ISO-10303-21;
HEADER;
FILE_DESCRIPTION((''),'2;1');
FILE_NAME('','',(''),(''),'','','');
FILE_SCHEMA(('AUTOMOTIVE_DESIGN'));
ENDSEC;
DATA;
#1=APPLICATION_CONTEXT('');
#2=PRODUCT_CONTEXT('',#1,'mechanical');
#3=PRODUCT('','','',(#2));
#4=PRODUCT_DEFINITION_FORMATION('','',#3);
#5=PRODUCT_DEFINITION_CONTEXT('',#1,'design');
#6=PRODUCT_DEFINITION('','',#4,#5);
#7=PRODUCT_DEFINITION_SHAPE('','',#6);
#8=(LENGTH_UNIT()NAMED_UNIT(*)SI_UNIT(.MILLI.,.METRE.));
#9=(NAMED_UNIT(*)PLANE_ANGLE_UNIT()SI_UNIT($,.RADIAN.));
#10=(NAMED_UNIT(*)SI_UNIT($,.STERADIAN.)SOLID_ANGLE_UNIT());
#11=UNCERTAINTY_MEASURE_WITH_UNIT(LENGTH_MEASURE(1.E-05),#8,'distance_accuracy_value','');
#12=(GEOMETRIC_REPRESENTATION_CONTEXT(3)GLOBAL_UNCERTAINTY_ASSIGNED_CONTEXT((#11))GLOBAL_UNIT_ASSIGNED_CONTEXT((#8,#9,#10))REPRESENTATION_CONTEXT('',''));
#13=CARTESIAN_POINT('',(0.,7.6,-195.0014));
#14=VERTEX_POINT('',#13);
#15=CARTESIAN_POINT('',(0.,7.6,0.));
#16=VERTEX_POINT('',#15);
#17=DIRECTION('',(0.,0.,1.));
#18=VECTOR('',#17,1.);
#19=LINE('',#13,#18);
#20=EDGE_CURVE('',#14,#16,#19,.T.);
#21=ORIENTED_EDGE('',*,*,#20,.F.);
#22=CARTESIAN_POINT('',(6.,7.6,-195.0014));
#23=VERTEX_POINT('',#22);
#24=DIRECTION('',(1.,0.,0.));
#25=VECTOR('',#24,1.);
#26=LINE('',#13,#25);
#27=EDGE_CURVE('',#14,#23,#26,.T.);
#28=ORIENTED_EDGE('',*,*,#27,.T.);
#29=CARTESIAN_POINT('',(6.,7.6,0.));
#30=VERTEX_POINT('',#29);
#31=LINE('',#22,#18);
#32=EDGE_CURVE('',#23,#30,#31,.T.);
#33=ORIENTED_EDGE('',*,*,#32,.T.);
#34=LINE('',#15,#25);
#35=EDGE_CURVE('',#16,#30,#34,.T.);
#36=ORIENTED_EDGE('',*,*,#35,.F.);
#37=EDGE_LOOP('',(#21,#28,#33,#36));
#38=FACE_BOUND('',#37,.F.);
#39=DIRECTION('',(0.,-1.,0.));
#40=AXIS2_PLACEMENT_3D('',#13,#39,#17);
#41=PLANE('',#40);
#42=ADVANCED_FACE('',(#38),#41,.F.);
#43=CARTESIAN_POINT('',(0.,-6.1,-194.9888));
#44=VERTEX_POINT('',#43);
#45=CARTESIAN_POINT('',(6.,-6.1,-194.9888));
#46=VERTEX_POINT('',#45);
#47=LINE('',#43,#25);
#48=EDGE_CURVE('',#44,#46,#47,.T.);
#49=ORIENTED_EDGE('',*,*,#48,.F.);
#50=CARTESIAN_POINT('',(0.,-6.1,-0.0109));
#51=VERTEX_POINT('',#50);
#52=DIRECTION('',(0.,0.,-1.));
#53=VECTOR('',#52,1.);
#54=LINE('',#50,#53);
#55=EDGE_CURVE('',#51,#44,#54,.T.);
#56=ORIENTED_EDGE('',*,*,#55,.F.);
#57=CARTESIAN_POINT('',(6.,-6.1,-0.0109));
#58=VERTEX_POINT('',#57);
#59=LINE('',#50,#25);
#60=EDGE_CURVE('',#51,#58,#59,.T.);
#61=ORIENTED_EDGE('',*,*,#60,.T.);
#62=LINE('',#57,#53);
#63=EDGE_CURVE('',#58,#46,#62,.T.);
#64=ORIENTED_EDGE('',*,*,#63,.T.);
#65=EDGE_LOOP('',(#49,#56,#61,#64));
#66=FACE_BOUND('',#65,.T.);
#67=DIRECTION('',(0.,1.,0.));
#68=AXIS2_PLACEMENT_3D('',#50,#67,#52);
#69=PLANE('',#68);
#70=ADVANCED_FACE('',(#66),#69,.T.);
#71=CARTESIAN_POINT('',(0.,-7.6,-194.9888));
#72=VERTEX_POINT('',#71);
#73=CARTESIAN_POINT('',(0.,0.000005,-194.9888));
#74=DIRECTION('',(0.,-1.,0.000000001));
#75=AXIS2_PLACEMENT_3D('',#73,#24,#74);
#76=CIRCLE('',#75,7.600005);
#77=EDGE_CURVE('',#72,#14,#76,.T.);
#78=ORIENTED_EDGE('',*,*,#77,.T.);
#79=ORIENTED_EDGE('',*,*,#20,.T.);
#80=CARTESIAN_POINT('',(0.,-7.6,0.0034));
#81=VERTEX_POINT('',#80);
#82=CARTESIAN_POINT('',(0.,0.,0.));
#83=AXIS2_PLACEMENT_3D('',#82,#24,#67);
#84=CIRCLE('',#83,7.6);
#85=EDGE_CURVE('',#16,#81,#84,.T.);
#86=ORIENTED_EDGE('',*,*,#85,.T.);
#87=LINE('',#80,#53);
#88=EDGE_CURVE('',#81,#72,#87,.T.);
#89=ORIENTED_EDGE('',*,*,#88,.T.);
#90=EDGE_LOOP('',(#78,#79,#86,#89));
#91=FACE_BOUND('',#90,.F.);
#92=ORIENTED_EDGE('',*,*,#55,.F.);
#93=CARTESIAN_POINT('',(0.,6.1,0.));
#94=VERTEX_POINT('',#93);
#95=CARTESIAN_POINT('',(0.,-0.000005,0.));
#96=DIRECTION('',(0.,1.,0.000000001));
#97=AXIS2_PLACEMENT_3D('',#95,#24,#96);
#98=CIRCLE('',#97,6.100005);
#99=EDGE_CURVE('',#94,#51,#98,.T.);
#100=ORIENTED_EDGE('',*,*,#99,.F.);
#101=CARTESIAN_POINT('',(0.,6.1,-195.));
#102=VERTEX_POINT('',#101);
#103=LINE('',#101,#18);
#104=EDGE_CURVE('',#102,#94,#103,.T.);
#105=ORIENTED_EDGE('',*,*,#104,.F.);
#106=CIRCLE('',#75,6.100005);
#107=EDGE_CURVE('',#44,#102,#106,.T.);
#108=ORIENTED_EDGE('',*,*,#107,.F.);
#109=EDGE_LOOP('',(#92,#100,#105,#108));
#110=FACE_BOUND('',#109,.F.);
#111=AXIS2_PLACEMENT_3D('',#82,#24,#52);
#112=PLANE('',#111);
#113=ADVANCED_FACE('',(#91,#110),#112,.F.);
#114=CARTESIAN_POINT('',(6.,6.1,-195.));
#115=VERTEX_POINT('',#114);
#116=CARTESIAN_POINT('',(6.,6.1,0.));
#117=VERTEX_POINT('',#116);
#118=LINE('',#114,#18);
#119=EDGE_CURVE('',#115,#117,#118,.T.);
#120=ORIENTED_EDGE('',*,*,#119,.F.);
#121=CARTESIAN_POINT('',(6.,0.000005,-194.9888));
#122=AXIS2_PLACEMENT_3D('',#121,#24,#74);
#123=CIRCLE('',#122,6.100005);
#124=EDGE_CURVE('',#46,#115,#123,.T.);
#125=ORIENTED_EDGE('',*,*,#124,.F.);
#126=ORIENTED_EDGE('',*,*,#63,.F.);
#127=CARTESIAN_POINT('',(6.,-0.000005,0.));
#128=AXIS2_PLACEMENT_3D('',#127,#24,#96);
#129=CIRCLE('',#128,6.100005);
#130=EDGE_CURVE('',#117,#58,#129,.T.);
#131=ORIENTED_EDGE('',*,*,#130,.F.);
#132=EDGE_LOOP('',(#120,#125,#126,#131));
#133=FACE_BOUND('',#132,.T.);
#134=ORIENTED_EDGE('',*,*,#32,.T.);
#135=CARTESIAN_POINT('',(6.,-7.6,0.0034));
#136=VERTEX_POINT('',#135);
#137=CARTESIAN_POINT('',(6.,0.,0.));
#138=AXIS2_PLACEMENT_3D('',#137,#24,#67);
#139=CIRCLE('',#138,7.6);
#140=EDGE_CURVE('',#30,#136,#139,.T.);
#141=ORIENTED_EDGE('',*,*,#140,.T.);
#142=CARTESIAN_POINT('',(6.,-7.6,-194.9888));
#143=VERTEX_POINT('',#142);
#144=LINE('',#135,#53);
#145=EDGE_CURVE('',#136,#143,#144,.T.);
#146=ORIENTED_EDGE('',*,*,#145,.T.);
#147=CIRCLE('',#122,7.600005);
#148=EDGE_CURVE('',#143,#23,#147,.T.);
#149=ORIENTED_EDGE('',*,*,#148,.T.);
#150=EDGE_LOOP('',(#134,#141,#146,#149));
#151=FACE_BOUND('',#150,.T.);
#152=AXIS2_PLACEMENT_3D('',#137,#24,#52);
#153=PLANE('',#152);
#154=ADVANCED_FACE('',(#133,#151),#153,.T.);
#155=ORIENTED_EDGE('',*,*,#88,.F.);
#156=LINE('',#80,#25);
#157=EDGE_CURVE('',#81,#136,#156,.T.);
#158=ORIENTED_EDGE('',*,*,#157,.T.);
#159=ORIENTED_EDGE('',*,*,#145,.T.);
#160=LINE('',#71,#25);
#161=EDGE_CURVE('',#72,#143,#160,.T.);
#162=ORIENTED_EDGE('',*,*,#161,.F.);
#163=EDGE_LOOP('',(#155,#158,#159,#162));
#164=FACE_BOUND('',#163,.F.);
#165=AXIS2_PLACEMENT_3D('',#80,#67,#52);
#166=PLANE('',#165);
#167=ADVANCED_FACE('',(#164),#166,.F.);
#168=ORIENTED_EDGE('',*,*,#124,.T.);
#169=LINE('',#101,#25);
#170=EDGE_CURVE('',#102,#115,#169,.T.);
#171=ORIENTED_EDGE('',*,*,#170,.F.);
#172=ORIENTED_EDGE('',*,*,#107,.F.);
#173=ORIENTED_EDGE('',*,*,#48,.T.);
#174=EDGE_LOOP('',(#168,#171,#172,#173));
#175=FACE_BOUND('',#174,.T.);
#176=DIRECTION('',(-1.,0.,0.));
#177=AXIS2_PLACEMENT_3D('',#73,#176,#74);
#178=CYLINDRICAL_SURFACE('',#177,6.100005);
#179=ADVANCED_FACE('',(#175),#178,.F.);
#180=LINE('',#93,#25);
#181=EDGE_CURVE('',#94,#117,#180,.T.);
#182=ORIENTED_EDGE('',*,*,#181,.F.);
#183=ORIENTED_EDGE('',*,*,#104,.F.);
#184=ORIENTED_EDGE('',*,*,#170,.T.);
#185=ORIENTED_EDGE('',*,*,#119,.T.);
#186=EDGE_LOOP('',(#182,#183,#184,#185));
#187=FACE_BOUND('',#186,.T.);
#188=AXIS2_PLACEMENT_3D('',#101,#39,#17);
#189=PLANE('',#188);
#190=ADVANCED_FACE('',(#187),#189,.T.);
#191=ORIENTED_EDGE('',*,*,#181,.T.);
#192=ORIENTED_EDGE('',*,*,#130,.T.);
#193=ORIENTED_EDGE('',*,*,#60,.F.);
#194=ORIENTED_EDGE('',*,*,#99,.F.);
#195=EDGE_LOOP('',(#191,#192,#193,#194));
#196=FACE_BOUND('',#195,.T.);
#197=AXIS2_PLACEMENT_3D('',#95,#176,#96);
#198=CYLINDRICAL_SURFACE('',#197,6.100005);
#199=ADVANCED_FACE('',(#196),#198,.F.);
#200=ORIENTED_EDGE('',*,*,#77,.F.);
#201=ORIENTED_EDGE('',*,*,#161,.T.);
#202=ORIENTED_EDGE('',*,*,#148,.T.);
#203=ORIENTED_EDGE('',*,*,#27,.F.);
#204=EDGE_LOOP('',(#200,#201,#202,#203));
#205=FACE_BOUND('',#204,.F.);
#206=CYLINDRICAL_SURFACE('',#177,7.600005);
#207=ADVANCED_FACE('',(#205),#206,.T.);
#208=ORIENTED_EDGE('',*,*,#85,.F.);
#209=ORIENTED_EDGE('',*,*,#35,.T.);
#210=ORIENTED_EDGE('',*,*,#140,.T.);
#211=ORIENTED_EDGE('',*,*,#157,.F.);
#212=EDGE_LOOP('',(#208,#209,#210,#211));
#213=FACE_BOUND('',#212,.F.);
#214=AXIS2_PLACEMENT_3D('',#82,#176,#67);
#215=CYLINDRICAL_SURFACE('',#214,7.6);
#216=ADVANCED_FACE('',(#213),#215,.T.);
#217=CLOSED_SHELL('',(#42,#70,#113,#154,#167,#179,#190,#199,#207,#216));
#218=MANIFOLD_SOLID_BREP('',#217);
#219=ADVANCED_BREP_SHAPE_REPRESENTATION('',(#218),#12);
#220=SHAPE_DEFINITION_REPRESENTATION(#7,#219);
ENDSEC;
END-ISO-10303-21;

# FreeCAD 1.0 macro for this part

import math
import FreeCAD as App
import Part
import Sketcher
from FreeCAD import Vector

doc = App.newDocument("Part")
body = doc.addObject("PartDesign::Body", "Body")

sketch1 = body.newObject("Sketcher::SketchObject", "Sketch")
sketch1.AttachmentSupport = (doc.getObject("YZ_Plane"), [""])
sketch1.MapMode = "FlatFace"
sketch1.addGeometry(Part.ArcOfCircle(Part.Circle(Vector(0, 0, 0), Vector(0, 0, 1), 7.6), math.radians(0), math.radians(179.974368)), False)
sketch1.addGeometry(Part.LineSegment(Vector(-7.6, 0.0034, 0), Vector(-7.6, -194.9888, 0)), False)
sketch1.addGeometry(Part.ArcOfCircle(Part.Circle(Vector(0, -194.9888, 0), Vector(0, 0, 1), 7.6), math.radians(180), math.radians(359.90501)), False)
sketch1.addGeometry(Part.LineSegment(Vector(7.6, -195.0014, 0), Vector(7.6, 0, 0)), False)
sketch1.addGeometry(Part.LineSegment(Vector(-6.1, -194.9888, 0), Vector(-6.1, -0.0109, 0)), False)
sketch1.addGeometry(Part.ArcOfCircle(Part.Circle(Vector(0, 0, 0), Vector(0, 0, 1), 6.1), math.radians(0), math.radians(180.102381)), False)
sketch1.addGeometry(Part.LineSegment(Vector(6.1, 0, 0), Vector(6.1, -195, 0)), False)
sketch1.addGeometry(Part.ArcOfCircle(Part.Circle(Vector(0, -194.9888, 0), Vector(0, 0, 1), 6.1), math.radians(180), math.radians(359.894801)), False)
sketch1.addConstraint(Sketcher.Constraint("Coincident", 0, 2, 1, 1))
sketch1.addConstraint(Sketcher.Constraint("Coincident", 1, 2, 2, 1))
sketch1.addConstraint(Sketcher.Constraint("Coincident", 2, 2, 3, 1))
sketch1.addConstraint(Sketcher.Constraint("Coincident", 3, 2, 0, 1))
sketch1.addConstraint(Sketcher.Constraint("Coincident", 4, 2, 5, 2))
sketch1.addConstraint(Sketcher.Constraint("Coincident", 5, 1, 6, 1))
sketch1.addConstraint(Sketcher.Constraint("Coincident", 6, 2, 7, 2))
sketch1.addConstraint(Sketcher.Constraint("Coincident", 7, 1, 4, 1))
sketch1.addConstraint(Sketcher.Constraint("Vertical", 1))
sketch1.addConstraint(Sketcher.Constraint("Vertical", 3))
sketch1.addConstraint(Sketcher.Constraint("Vertical", 4))
sketch1.addConstraint(Sketcher.Constraint("Vertical", 6))
sketch1.addConstraint(Sketcher.Constraint("Coincident", 0, 3, -1, 1))
sketch1.addConstraint(Sketcher.Constraint("Coincident", 5, 3, -1, 1))
sketch1.addConstraint(Sketcher.Constraint("PointOnObject", 3, 2, -1))
sketch1.addConstraint(Sketcher.Constraint("PointOnObject", 5, 1, -1))
sketch1.addConstraint(Sketcher.Constraint("Radius", 5, 6.1))
sketch1.addConstraint(Sketcher.Constraint("DistanceY", 6, 2, 6, 1, 195.0))
sketch1.addConstraint(Sketcher.Constraint("Radius", 0, 7.6))
sketch1.addConstraint(Sketcher.Constraint("DistanceY", 4, 1, 4, 2, 194.978))
sketch1.addConstraint(Sketcher.Constraint("DistanceY", 1, 2, 1, 1, 194.9922))
sketch1.addConstraint(Sketcher.Constraint("DistanceY", 3, 1, 3, 2, 195.0014))
sketch1.addConstraint(Sketcher.Constraint("DistanceY", 4, 2, -1, 1, 0.011))
sketch1.addConstraint(Sketcher.Constraint("DistanceY", 1, 2, 4, 2, 194.978))
sketch1.addConstraint(Sketcher.Constraint("DistanceY", 2, 3, -1, 1, 194.9888))
sketch1.addConstraint(Sketcher.Constraint("DistanceY", 7, 3, -1, 1, 194.9888))
pad1 = body.newObject("PartDesign::Pad", "Pad")
pad1.Profile = sketch1
pad1.Length = 6

doc.recompute()
